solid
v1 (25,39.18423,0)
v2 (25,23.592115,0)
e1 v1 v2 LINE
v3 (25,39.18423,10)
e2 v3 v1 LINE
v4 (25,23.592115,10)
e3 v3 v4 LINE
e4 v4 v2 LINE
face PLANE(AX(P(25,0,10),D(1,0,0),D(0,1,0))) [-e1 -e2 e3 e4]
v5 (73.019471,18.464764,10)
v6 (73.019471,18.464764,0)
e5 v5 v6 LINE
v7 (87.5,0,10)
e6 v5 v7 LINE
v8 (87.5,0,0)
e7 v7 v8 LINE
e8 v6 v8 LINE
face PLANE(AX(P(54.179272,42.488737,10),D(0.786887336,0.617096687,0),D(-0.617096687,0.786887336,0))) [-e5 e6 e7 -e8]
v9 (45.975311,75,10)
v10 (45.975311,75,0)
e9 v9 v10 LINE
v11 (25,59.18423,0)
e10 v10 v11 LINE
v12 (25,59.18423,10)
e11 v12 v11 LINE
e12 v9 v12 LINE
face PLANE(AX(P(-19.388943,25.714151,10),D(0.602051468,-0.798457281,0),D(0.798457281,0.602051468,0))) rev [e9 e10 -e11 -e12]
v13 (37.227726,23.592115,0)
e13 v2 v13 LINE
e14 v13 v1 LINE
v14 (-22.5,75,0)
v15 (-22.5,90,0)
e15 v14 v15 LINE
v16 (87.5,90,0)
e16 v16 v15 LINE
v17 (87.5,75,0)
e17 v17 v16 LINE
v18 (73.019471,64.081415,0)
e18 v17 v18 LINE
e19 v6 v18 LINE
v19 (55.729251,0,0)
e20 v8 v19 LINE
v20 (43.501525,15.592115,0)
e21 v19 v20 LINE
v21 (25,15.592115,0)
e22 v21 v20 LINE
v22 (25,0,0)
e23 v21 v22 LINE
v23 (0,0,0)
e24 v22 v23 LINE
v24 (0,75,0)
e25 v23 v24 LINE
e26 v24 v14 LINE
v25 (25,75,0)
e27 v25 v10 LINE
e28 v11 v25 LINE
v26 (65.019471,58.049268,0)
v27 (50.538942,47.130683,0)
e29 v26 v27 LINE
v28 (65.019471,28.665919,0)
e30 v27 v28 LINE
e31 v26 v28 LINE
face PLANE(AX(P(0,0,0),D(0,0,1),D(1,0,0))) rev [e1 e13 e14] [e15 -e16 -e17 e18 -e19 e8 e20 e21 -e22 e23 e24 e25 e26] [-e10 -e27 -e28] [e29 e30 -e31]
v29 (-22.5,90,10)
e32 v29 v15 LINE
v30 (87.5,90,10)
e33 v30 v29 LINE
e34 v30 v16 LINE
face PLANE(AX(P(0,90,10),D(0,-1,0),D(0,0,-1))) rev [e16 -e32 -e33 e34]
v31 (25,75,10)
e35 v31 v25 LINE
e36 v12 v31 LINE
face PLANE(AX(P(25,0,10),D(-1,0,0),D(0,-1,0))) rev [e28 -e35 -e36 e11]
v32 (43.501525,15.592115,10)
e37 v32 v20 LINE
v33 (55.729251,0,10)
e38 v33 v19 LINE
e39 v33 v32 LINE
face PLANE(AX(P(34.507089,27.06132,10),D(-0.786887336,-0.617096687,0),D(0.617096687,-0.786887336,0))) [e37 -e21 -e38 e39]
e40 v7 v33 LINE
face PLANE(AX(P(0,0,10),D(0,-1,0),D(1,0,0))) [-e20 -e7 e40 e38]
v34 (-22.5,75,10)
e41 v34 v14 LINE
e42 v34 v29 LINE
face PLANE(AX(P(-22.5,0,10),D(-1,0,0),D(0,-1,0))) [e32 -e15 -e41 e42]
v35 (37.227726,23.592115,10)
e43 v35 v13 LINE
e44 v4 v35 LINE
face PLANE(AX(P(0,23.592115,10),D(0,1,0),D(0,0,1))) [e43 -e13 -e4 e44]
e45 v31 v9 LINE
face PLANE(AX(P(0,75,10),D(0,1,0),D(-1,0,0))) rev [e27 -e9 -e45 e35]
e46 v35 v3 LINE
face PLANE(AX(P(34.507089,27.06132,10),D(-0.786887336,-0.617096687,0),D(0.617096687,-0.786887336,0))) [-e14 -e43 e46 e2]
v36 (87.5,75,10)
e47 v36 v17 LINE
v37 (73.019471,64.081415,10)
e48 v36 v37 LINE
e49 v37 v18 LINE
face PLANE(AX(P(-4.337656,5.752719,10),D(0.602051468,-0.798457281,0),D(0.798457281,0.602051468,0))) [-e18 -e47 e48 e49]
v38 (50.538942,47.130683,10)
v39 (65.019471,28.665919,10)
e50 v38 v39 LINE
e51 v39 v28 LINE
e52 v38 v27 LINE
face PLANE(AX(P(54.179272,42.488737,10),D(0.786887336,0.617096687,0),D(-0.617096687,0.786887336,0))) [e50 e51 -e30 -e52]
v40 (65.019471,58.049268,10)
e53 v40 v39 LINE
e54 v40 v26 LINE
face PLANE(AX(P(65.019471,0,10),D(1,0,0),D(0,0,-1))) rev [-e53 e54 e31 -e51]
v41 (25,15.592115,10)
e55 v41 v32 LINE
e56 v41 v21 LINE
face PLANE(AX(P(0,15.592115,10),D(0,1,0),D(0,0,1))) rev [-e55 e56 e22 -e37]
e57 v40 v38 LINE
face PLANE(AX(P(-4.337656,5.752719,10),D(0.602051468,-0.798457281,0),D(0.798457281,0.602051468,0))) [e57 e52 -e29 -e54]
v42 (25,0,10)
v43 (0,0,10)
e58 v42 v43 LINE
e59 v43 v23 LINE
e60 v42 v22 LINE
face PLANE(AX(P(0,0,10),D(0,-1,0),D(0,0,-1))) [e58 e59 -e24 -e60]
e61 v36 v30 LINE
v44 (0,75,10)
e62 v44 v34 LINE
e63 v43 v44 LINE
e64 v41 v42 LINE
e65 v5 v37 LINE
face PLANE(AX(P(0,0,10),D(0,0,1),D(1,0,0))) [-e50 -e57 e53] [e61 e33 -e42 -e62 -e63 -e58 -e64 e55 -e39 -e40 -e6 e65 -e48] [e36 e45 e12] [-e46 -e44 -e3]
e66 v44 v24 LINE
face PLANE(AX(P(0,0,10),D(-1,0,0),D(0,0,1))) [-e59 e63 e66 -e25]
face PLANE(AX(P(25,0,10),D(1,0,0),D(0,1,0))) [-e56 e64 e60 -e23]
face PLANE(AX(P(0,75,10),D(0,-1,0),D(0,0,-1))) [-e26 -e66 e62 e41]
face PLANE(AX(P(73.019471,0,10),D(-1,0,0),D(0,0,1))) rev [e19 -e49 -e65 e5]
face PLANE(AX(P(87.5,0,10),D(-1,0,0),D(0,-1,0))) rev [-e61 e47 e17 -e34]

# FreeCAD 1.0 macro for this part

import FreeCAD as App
import Part
import Sketcher

V = App.Vector


def add_polygon(sketch, points):
    """Adds a closed chain of lines whose ends are joined by coincident constraints."""
    first, n = sketch.GeometryCount, len(points)
    for a, b in zip(points, points[1:] + points[:1]):
        sketch.addGeometry(Part.LineSegment(App.Vector(*a, 0), App.Vector(*b, 0)), False)
    for i in range(n):
        sketch.addConstraint(Sketcher.Constraint("Coincident", first + i, 2, first + (i + 1) % n, 1))

doc = App.newDocument("Part")
body = doc.addObject("PartDesign::Body", "Body")

# Sketch on XY plane
sketch1 = body.newObject("Sketcher::SketchObject", "Sketch")
sketch1.AttachmentSupport = (doc.getObject("XY_Plane"), [""])
sketch1.MapMode = "FlatFace"
add_polygon(sketch1, [(88, 75), (88, 90), (-22, 90), (-22, 75), (0, 75), (0, 0), (25, 0), (25, 16), (44, 16), (56, 0), (88, 0), (73, 18), (73, 64)])  # lines 0-12
add_polygon(sketch1, [(51, 47), (65, 58), (65, 29)])  # lines 13-15
add_polygon(sketch1, [(25, 39), (37, 24), (25, 24)])  # lines 16-18
add_polygon(sketch1, [(25, 75), (46, 75), (25, 59)])  # lines 19-21
sketch1.addConstraint([
    Sketcher.Constraint("Vertical", 0),
    Sketcher.Constraint("Horizontal", 1),
    Sketcher.Constraint("Vertical", 2),
    Sketcher.Constraint("Horizontal", 3),
    Sketcher.Constraint("Vertical", 4),
    Sketcher.Constraint("Horizontal", 5),
    Sketcher.Constraint("Vertical", 6),
    Sketcher.Constraint("Horizontal", 7),
    Sketcher.Constraint("Horizontal", 9),
    Sketcher.Constraint("Vertical", 11),
    Sketcher.Constraint("Vertical", 14),
    Sketcher.Constraint("Horizontal", 17),
    Sketcher.Constraint("Vertical", 18),
    Sketcher.Constraint("Horizontal", 19),
    Sketcher.Constraint("Vertical", 21),
    Sketcher.Constraint("Coincident", 4, 2, -1, 1),
    Sketcher.Constraint("PointOnObject", 8, 2, -1),
    Sketcher.Constraint("Parallel", 8, 10),
    Sketcher.Constraint("Parallel", 12, 13),
    Sketcher.Constraint("Parallel", 10, 15),
    Sketcher.Constraint("Parallel", 15, 16),
    Sketcher.Constraint("Parallel", 13, 20),
    Sketcher.Constraint("Horizontal", 3, 2, 12, 2),
    Sketcher.Constraint("Horizontal", 12, 2, 19, 2),
    Sketcher.Constraint("Vertical", 0, 2, 9, 2),
    Sketcher.Constraint("Vertical", 6, 2, 17, 2),
    Sketcher.Constraint("Vertical", 18, 2, 20, 2),
    Sketcher.Constraint("Equal", 6, 18),
    Sketcher.Constraint("Equal", 12, 13),
    Sketcher.Constraint("DistanceX", 1, 2, 1, 1, 110.0),
    Sketcher.Constraint("DistanceX", 5, 1, 5, 2, 25.0),
    Sketcher.Constraint("DistanceY", 0, 1, 0, 2, 15.0),
    Sketcher.Constraint("DistanceY", 4, 2, 4, 1, 75.0),
    Sketcher.Constraint("DistanceX", 3, 1, 3, 2, 22.5),
    Sketcher.Constraint("DistanceX", 13, 2, 11, 2, 8.0),
    Sketcher.Constraint("DistanceY", 7, 2, 16, 2, 8.0),
    Sketcher.Constraint("DistanceY", 18, 2, 20, 2, 20.0),
    Sketcher.Constraint("DistanceX", 9, 1, 9, 2, 31.770749),
    Sketcher.Constraint("DistanceX", 19, 1, 19, 2, 20.975311),
    Sketcher.Constraint("DistanceY", 11, 1, 11, 2, 45.616651),
    Sketcher.Constraint("DistanceY", 21, 1, 21, 2, 15.81577),
    Sketcher.Constraint("DistanceY", 7, 2, 11, 2, 48.4893),
    Sketcher.Constraint("DistanceY", -1, 1, 14, 2, 28.665919),
])
pad1 = body.newObject("PartDesign::Pad", "Pad")
pad1.Profile = sketch1
pad1.Length = 10

doc.recompute()
